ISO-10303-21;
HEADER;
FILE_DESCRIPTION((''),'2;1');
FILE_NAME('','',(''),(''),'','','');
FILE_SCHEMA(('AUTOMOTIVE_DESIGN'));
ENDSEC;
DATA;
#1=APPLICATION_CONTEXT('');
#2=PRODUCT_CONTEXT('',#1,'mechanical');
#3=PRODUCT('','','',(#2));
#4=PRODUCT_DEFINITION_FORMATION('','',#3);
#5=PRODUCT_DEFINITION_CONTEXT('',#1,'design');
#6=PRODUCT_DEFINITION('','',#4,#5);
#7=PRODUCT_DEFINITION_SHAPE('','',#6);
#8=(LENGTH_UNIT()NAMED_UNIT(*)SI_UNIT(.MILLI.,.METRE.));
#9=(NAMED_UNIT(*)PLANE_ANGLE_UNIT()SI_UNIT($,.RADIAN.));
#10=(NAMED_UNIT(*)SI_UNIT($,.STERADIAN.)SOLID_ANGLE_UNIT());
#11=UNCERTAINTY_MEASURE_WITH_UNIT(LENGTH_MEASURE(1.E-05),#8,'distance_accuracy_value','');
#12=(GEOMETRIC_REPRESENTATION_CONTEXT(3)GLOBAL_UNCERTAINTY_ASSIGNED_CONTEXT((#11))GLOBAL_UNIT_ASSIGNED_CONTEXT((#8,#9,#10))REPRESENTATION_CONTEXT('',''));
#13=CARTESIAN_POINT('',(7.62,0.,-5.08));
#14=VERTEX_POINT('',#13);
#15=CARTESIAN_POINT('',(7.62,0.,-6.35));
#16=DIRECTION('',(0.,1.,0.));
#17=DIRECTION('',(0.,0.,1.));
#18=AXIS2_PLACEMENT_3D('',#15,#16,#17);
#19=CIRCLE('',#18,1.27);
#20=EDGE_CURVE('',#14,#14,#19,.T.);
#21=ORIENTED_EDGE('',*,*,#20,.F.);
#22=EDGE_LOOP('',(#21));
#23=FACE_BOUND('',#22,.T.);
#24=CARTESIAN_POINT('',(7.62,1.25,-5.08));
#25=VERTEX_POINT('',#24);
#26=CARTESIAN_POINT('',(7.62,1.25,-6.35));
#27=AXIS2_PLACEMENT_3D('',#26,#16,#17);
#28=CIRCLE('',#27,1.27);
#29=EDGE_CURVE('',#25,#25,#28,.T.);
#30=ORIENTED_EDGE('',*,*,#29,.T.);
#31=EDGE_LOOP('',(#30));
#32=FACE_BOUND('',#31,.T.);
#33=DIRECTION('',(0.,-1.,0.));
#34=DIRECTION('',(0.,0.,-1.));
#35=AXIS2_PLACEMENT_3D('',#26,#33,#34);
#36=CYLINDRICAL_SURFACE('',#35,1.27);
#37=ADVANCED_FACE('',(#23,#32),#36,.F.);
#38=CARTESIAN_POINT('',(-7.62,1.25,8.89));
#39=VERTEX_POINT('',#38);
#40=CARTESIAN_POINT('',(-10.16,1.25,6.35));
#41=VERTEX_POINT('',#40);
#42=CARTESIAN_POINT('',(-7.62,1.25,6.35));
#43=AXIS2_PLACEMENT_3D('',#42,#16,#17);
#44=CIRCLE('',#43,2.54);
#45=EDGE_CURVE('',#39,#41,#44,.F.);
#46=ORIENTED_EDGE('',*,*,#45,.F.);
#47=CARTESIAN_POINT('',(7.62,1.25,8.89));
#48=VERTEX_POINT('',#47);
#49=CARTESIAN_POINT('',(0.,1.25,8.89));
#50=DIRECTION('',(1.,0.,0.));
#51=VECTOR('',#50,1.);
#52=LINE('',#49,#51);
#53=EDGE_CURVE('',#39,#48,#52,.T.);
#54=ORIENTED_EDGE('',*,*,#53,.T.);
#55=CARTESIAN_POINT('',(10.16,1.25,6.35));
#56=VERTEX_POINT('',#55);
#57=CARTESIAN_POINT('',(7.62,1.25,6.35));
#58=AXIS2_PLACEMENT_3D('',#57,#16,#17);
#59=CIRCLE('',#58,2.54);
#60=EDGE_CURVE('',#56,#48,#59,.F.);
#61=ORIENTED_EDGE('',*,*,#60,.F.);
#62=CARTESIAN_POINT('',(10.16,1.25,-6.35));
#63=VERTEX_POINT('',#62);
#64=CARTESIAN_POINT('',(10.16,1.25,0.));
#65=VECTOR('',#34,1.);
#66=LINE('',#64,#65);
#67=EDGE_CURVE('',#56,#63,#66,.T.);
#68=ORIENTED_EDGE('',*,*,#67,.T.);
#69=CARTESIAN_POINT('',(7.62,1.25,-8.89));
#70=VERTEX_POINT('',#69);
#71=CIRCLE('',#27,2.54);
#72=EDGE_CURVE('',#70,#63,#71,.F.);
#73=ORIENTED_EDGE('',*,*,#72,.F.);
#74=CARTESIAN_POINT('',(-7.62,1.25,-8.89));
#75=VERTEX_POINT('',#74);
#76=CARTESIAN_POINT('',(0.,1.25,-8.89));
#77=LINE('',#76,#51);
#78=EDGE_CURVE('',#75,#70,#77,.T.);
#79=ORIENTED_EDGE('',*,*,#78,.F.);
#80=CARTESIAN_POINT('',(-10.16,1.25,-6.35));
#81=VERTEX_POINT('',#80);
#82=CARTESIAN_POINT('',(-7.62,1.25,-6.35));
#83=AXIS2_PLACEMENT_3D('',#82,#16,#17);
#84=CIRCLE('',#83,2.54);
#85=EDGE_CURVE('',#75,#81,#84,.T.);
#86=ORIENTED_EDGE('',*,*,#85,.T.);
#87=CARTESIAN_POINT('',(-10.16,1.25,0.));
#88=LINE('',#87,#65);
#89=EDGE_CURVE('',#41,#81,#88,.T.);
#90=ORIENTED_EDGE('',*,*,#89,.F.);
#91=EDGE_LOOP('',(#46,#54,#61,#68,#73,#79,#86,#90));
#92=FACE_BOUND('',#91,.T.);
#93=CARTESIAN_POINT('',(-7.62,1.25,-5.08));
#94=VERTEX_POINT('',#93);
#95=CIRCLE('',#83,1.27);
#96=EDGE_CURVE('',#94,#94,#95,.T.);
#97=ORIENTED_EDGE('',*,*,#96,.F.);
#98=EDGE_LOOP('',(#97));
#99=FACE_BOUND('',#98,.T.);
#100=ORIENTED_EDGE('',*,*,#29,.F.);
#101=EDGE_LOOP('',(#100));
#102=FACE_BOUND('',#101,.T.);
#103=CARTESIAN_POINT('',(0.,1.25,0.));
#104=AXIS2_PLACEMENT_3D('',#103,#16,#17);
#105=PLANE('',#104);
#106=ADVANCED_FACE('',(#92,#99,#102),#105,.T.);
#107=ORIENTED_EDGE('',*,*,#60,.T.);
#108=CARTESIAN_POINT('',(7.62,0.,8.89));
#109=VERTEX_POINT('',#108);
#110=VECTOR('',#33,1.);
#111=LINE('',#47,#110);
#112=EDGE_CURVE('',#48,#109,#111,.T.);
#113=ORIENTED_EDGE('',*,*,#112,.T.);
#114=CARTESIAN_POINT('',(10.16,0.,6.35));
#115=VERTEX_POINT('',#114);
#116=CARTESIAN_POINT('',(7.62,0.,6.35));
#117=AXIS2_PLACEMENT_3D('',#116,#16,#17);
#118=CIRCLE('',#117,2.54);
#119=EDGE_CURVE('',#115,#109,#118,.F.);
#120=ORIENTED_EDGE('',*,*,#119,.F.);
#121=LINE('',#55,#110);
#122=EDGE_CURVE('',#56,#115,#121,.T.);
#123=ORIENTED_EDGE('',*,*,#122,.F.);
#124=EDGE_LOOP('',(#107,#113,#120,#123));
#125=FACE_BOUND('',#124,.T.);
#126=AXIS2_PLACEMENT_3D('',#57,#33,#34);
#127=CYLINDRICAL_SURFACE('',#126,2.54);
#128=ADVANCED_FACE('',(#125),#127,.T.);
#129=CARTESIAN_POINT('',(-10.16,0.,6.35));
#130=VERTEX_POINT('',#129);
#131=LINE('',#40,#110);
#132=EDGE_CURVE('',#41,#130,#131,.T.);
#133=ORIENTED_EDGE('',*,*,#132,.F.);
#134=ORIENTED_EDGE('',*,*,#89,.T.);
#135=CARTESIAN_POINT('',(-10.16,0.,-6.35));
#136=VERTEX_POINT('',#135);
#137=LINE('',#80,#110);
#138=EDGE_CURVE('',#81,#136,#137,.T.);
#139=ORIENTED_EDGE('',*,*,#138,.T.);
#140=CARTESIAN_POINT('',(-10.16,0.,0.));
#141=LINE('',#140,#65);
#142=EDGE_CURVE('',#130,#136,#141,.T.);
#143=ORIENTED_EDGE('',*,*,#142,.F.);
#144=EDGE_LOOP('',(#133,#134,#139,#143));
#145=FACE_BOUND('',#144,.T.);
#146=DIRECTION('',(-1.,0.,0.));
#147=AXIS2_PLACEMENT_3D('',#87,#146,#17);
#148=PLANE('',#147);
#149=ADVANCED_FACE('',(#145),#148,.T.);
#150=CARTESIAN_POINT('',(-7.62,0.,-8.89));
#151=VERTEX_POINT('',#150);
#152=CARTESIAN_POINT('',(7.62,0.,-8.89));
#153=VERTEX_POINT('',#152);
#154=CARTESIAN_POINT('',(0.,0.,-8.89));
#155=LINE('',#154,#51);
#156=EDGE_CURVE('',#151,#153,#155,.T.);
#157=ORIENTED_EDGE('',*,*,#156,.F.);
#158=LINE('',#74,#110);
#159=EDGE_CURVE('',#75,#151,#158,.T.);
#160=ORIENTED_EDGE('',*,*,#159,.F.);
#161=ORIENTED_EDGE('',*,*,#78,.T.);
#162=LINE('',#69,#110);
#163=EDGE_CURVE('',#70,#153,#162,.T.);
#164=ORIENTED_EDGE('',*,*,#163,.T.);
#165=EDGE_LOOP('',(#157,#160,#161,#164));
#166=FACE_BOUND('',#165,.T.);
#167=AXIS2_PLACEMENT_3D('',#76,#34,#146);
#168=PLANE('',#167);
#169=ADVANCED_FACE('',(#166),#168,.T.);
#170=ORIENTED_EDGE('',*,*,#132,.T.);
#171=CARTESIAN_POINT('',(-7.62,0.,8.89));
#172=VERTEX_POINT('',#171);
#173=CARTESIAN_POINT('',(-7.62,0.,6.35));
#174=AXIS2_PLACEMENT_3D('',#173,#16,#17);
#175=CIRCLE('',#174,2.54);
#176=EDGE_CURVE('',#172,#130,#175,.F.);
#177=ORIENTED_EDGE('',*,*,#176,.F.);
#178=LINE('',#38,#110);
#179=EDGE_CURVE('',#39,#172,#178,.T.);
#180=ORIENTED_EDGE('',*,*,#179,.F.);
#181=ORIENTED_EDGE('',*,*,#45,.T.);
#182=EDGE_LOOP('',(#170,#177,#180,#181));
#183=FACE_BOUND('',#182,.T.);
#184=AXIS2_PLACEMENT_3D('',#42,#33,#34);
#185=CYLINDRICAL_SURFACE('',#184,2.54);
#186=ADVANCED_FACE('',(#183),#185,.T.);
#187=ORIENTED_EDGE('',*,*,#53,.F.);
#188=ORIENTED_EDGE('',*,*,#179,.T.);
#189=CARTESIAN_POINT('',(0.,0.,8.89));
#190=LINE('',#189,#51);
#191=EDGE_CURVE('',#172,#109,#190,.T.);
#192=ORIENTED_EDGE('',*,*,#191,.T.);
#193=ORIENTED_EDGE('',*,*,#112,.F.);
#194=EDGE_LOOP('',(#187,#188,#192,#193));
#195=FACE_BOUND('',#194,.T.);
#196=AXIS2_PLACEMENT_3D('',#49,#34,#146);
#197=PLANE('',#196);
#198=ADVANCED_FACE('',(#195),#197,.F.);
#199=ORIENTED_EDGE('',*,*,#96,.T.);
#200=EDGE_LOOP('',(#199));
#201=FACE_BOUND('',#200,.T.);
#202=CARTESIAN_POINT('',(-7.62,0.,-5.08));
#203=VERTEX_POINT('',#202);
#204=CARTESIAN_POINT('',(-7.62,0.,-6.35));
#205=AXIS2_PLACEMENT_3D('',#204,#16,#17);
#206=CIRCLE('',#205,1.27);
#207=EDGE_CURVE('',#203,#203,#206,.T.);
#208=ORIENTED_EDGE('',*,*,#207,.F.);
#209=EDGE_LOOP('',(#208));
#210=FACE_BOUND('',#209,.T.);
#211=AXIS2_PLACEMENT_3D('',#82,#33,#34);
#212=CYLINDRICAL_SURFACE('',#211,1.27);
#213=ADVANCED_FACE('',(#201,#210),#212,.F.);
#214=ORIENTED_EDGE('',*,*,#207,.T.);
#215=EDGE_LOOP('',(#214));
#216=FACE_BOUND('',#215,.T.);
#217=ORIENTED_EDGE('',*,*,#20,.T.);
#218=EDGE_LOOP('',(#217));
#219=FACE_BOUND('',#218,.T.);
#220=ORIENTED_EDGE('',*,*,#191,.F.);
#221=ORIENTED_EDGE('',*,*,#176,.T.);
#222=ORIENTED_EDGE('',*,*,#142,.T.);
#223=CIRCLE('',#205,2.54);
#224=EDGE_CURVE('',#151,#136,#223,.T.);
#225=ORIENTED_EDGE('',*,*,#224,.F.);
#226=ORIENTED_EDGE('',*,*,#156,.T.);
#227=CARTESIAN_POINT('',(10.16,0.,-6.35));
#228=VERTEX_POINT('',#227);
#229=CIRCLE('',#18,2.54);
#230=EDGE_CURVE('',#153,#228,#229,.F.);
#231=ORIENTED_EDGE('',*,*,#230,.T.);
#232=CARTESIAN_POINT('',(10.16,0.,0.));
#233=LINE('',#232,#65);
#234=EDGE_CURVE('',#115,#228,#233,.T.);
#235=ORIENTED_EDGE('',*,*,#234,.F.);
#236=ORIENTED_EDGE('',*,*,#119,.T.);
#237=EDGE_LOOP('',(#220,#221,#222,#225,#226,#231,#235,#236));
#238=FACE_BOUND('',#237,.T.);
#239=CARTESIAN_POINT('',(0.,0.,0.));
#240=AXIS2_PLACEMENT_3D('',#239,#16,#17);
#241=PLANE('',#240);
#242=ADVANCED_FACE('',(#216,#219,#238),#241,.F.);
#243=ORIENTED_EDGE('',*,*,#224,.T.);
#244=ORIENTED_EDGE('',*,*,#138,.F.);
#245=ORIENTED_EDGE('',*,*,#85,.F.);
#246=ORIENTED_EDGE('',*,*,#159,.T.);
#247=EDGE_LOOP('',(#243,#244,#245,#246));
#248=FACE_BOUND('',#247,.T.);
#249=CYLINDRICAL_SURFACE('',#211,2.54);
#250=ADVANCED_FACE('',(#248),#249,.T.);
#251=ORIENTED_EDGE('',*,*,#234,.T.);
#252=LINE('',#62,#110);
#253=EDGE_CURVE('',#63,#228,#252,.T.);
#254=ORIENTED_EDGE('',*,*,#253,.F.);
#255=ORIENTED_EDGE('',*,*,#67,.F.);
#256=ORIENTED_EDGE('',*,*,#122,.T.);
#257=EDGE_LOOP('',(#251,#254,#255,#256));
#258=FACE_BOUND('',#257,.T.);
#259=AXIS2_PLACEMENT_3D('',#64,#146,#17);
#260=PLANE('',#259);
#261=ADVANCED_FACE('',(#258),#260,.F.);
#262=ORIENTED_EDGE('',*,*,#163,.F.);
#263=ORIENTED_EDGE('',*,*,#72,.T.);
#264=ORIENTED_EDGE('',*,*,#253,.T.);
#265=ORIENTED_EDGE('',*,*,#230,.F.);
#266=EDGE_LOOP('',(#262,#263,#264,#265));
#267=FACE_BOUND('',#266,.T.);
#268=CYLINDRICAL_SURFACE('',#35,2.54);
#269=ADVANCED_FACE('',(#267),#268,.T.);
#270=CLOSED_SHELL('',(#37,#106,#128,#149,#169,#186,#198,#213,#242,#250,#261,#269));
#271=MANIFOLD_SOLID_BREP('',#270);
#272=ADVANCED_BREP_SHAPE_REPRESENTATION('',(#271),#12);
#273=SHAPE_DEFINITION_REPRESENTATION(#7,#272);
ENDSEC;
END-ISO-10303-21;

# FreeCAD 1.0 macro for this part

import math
import FreeCAD as App
import Part
import Sketcher

V = App.Vector
Q = App.Units.Quantity

doc = App.newDocument("Part")
body = doc.addObject("PartDesign::Body", "Body")

sketch1 = body.newObject("Sketcher::SketchObject", "Sketch")
sketch1.AttachmentSupport = (doc.getObject("XZ_Plane"), [""])
sketch1.MapMode = "FlatFace"
sketch1.addGeometry(Part.ArcOfCircle(Part.Circle(V(-7.62, 6.35, 0), V(0, 0, 1), 2.54), math.radians(90), math.radians(180)), False)
sketch1.addGeometry(Part.LineSegment(V(-7.62, 8.89, 0), V(7.62, 8.89, 0)), False)
sketch1.addGeometry(Part.ArcOfCircle(Part.Circle(V(7.62, 6.35, 0), V(0, 0, 1), 2.54), math.radians(0), math.radians(90)), False)
sketch1.addGeometry(Part.LineSegment(V(10.16, 6.35, 0), V(10.16, -6.35, 0)), False)
sketch1.addGeometry(Part.ArcOfCircle(Part.Circle(V(7.62, -6.35, 0), V(0, 0, 1), 2.54), math.radians(-90), math.radians(0)), False)
sketch1.addGeometry(Part.LineSegment(V(7.62, -8.89, 0), V(-7.62, -8.89, 0)), False)
sketch1.addGeometry(Part.ArcOfCircle(Part.Circle(V(-7.62, -6.35, 0), V(0, 0, 1), 2.54), math.radians(-180), math.radians(-90)), False)
sketch1.addGeometry(Part.LineSegment(V(-10.16, -6.35, 0), V(-10.16, 6.35, 0)), False)
sketch1.addGeometry(Part.Circle(V(7.62, -6.35, 0), V(0, 0, 1), 1.27), False)
sketch1.addGeometry(Part.Circle(V(-7.62, -6.35, 0), V(0, 0, 1), 1.27), False)
sketch1.addConstraint(Sketcher.Constraint("Tangent", 0, 1, 1, 1))
sketch1.addConstraint(Sketcher.Constraint("Tangent", 1, 2, 2, 2))
sketch1.addConstraint(Sketcher.Constraint("Tangent", 2, 1, 3, 1))
sketch1.addConstraint(Sketcher.Constraint("Tangent", 3, 2, 4, 2))
sketch1.addConstraint(Sketcher.Constraint("Tangent", 4, 1, 5, 1))
sketch1.addConstraint(Sketcher.Constraint("Tangent", 5, 2, 6, 2))
sketch1.addConstraint(Sketcher.Constraint("Tangent", 6, 1, 7, 1))
sketch1.addConstraint(Sketcher.Constraint("Tangent", 7, 2, 0, 2))
sketch1.addConstraint(Sketcher.Constraint("Horizontal", 1))
sketch1.addConstraint(Sketcher.Constraint("Vertical", 3))
sketch1.addConstraint(Sketcher.Constraint("Horizontal", 5))
sketch1.addConstraint(Sketcher.Constraint("Vertical", 7))
sketch1.addConstraint(Sketcher.Constraint("Coincident", 8, 3, 4, 3))
sketch1.addConstraint(Sketcher.Constraint("Coincident", 9, 3, 6, 3))
sketch1.addConstraint(Sketcher.Constraint("Equal", 0, 2))
sketch1.addConstraint(Sketcher.Constraint("Equal", 2, 4))
sketch1.addConstraint(Sketcher.Constraint("Equal", 4, 6))
sketch1.addConstraint(Sketcher.Constraint("Equal", 8, 9))
sketch1.addConstraint(Sketcher.Constraint("Symmetric", 0, 3, 4, 3, -1, 1))
sketch1.addConstraint(Sketcher.Constraint("Diameter", 8, Q("0.1 in")))
sketch1.addConstraint(Sketcher.Constraint("Radius", 0, Q("0.1 in")))
sketch1.addConstraint(Sketcher.Constraint("DistanceX", 1, 1, 1, 2, Q("0.6 in")))
sketch1.addConstraint(Sketcher.Constraint("DistanceY", 3, 2, 3, 1, Q("0.5 in")))
pad1 = body.newObject("PartDesign::Pad", "Pad")
pad1.Profile = sketch1
pad1.Length = 1.25
pad1.Reversed = True

doc.recompute()
